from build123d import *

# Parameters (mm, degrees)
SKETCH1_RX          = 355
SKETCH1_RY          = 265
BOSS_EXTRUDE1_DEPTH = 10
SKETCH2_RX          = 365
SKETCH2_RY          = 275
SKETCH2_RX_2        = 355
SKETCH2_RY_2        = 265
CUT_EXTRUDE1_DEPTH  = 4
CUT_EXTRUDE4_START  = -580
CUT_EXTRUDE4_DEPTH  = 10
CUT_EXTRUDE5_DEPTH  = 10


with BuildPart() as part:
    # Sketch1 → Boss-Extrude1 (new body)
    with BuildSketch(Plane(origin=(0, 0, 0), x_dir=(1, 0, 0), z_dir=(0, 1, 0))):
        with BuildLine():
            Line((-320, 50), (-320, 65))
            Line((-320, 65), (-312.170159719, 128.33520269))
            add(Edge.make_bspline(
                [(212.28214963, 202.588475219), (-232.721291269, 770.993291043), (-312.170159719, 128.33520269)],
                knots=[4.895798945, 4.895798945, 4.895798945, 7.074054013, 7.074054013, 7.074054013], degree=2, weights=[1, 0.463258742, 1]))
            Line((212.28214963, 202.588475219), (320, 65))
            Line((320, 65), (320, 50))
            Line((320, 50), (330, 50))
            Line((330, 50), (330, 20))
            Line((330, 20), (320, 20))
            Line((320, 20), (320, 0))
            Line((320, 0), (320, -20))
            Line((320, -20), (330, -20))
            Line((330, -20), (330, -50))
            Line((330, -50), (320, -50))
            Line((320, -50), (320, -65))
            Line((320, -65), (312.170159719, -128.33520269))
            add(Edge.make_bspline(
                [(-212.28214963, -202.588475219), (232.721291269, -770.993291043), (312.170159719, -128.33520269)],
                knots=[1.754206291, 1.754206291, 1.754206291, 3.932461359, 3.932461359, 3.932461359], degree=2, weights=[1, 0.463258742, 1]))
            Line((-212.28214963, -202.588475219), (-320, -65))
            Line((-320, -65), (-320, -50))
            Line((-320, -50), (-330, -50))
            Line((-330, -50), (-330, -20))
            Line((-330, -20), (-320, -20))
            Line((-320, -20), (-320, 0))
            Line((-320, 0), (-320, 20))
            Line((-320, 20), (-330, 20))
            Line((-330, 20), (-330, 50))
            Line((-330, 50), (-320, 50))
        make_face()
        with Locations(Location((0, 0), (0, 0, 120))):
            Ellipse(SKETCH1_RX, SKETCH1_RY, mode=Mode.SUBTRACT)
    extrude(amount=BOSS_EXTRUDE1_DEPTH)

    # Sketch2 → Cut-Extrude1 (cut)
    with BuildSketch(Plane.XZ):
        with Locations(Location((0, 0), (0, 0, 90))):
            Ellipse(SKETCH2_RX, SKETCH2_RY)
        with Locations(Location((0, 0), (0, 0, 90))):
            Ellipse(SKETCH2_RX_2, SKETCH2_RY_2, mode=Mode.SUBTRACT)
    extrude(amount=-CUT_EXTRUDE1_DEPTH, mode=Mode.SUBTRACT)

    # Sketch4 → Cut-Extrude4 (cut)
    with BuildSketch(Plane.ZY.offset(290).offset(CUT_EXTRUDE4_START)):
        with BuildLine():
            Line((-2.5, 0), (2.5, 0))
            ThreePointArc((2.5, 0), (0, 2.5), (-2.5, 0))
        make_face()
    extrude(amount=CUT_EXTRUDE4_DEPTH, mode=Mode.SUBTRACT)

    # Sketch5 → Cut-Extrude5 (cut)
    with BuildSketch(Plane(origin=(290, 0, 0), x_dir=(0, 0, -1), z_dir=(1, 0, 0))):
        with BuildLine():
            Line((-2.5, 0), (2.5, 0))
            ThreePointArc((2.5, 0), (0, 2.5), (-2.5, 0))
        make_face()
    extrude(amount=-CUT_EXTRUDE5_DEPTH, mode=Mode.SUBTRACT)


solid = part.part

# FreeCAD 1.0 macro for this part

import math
import FreeCAD as App
import Part
import Sketcher
from FreeCAD import Vector
Q = App.Units.Quantity

doc = App.newDocument("Part")
body = doc.addObject("PartDesign::Body", "Body")

# Sketch on XZ plane
sketch1 = body.newObject("Sketcher::SketchObject", "Sketch")
sketch1.AttachmentSupport = (doc.getObject("XZ_Plane"), [""])
sketch1.MapMode = "FlatFace"
sketch1.addGeometry(Part.LineSegment(Vector(-320, -65, 0), Vector(-320, -50, 0)), False)
sketch1.addGeometry(Part.LineSegment(Vector(-320, -50, 0), Vector(-330, -50, 0)), False)
sketch1.addGeometry(Part.LineSegment(Vector(-330, -50, 0), Vector(-330, -20, 0)), False)
sketch1.addGeometry(Part.LineSegment(Vector(-330, -20, 0), Vector(-320, -20, 0)), False)
sketch1.addGeometry(Part.LineSegment(Vector(-320, -20, 0), Vector(-320, 20, 0)), False)
sketch1.addGeometry(Part.LineSegment(Vector(-320, 20, 0), Vector(-330, 20, 0)), False)
sketch1.addGeometry(Part.LineSegment(Vector(-330, 20, 0), Vector(-330, 50, 0)), False)
sketch1.addGeometry(Part.LineSegment(Vector(-330, 50, 0), Vector(-320, 50, 0)), False)
sketch1.addGeometry(Part.LineSegment(Vector(-320, 50, 0), Vector(-320, 65, 0)), False)
sketch1.addGeometry(Part.LineSegment(Vector(-320, 65, 0), Vector(-212.28215, 202.588475, 0)), False)
sketch1.addGeometry(Part.BSplineCurve([Vector(-212.28215, 202.588475, 0), Vector(232.721291, 770.993291, 0), Vector(312.17016, 128.335203, 0)], [3, 3], [1.754206291, 3.932461359], False, 2, [1, 0.463258742, 1], False), False)
sketch1.addGeometry(Part.LineSegment(Vector(312.17016, 128.335203, 0), Vector(320, 65, 0)), False)
sketch1.addGeometry(Part.LineSegment(Vector(320, 65, 0), Vector(320, 50, 0)), False)
sketch1.addGeometry(Part.LineSegment(Vector(320, 50, 0), Vector(330, 50, 0)), False)
sketch1.addGeometry(Part.LineSegment(Vector(330, 50, 0), Vector(330, 20, 0)), False)
sketch1.addGeometry(Part.LineSegment(Vector(330, 20, 0), Vector(320, 20, 0)), False)
sketch1.addGeometry(Part.LineSegment(Vector(320, 20, 0), Vector(320, -20, 0)), False)
sketch1.addGeometry(Part.LineSegment(Vector(320, -20, 0), Vector(330, -20, 0)), False)
sketch1.addGeometry(Part.LineSegment(Vector(330, -20, 0), Vector(330, -50, 0)), False)
sketch1.addGeometry(Part.LineSegment(Vector(330, -50, 0), Vector(320, -50, 0)), False)
sketch1.addGeometry(Part.LineSegment(Vector(320, -50, 0), Vector(320, -65, 0)), False)
sketch1.addGeometry(Part.LineSegment(Vector(320, -65, 0), Vector(212.28215, -202.588475, 0)), False)
sketch1.addGeometry(Part.BSplineCurve([Vector(212.28215, -202.588475, 0), Vector(-232.721291, -770.993291, 0), Vector(-312.17016, -128.335203, 0)], [3, 3], [4.895798945, 7.074054013], False, 2, [1, 0.463258742, 1], False), False)
sketch1.addGeometry(Part.LineSegment(Vector(-312.17016, -128.335203, 0), Vector(-320, -65, 0)), False)
sketch1.addGeometry(Part.Ellipse(Vector(-177.5, -307.439018, 0), Vector(229.496732, -132.5, 0), Vector(0, 0, 0)), False)
sketch1.addConstraint(Sketcher.Constraint("Block", 10))
sketch1.addConstraint(Sketcher.Constraint("Block", 22))
sketch1.addConstraint(Sketcher.Constraint("Block", 24))
sketch1.addConstraint(Sketcher.Constraint("Coincident", 0, 2, 1, 1))
sketch1.addConstraint(Sketcher.Constraint("Coincident", 1, 2, 2, 1))
sketch1.addConstraint(Sketcher.Constraint("Coincident", 2, 2, 3, 1))
sketch1.addConstraint(Sketcher.Constraint("Coincident", 3, 2, 4, 1))
sketch1.addConstraint(Sketcher.Constraint("Coincident", 4, 2, 5, 1))
sketch1.addConstraint(Sketcher.Constraint("Coincident", 5, 2, 6, 1))
sketch1.addConstraint(Sketcher.Constraint("Coincident", 6, 2, 7, 1))
sketch1.addConstraint(Sketcher.Constraint("Coincident", 7, 2, 8, 1))
sketch1.addConstraint(Sketcher.Constraint("Coincident", 8, 2, 9, 1))
sketch1.addConstraint(Sketcher.Constraint("Coincident", 9, 2, 10, 1))
sketch1.addConstraint(Sketcher.Constraint("Coincident", 10, 2, 11, 1))
sketch1.addConstraint(Sketcher.Constraint("Coincident", 11, 2, 12, 1))
sketch1.addConstraint(Sketcher.Constraint("Coincident", 12, 2, 13, 1))
sketch1.addConstraint(Sketcher.Constraint("Coincident", 13, 2, 14, 1))
sketch1.addConstraint(Sketcher.Constraint("Coincident", 14, 2, 15, 1))
sketch1.addConstraint(Sketcher.Constraint("Coincident", 15, 2, 16, 1))
sketch1.addConstraint(Sketcher.Constraint("Coincident", 16, 2, 17, 1))
sketch1.addConstraint(Sketcher.Constraint("Coincident", 17, 2, 18, 1))
sketch1.addConstraint(Sketcher.Constraint("Coincident", 18, 2, 19, 1))
sketch1.addConstraint(Sketcher.Constraint("Coincident", 19, 2, 20, 1))
sketch1.addConstraint(Sketcher.Constraint("Coincident", 20, 2, 21, 1))
sketch1.addConstraint(Sketcher.Constraint("Coincident", 21, 2, 22, 1))
sketch1.addConstraint(Sketcher.Constraint("Coincident", 22, 2, 23, 1))
sketch1.addConstraint(Sketcher.Constraint("Coincident", 23, 2, 0, 1))
sketch1.addConstraint(Sketcher.Constraint("Vertical", 0))
sketch1.addConstraint(Sketcher.Constraint("Horizontal", 1))
sketch1.addConstraint(Sketcher.Constraint("Vertical", 2))
sketch1.addConstraint(Sketcher.Constraint("Horizontal", 3))
sketch1.addConstraint(Sketcher.Constraint("Vertical", 4))
sketch1.addConstraint(Sketcher.Constraint("Horizontal", 5))
sketch1.addConstraint(Sketcher.Constraint("Vertical", 6))
sketch1.addConstraint(Sketcher.Constraint("Horizontal", 7))
sketch1.addConstraint(Sketcher.Constraint("Vertical", 8))
sketch1.addConstraint(Sketcher.Constraint("Vertical", 12))
sketch1.addConstraint(Sketcher.Constraint("Horizontal", 13))
sketch1.addConstraint(Sketcher.Constraint("Vertical", 14))
sketch1.addConstraint(Sketcher.Constraint("Horizontal", 15))
sketch1.addConstraint(Sketcher.Constraint("Vertical", 16))
sketch1.addConstraint(Sketcher.Constraint("Horizontal", 17))
sketch1.addConstraint(Sketcher.Constraint("Vertical", 18))
sketch1.addConstraint(Sketcher.Constraint("Horizontal", 19))
sketch1.addConstraint(Sketcher.Constraint("Vertical", 20))
sketch1.addConstraint(Sketcher.Constraint("Symmetric", 0, 2, 12, 2, -1, 1))
sketch1.addConstraint(Sketcher.Constraint("Symmetric", 2, 2, 14, 2, -1, 1))
sketch1.addConstraint(Sketcher.Constraint("Symmetric", 4, 2, 16, 2, -1, 1))
sketch1.addConstraint(Sketcher.Constraint("Symmetric", 6, 2, 18, 2, -1, 1))
sketch1.addConstraint(Sketcher.Constraint("Symmetric", 8, 2, 20, 2, -1, 1))
sketch1.addConstraint(Sketcher.Constraint("Symmetric", 8, 2, 11, 2, -2))
sketch1.addConstraint(Sketcher.Constraint("Symmetric", 6, 2, 13, 2, -2))
sketch1.addConstraint(Sketcher.Constraint("Parallel", 11, 23))
sketch1.addConstraint(Sketcher.Constraint("Horizontal", 5, 2, 14, 2))
sketch1.addConstraint(Sketcher.Constraint("Vertical", 0, 2, 3, 2))
sketch1.addConstraint(Sketcher.Constraint("DistanceX", 1, 2, 1, 1, Q("10 mm")))
sketch1.addConstraint(Sketcher.Constraint("DistanceY", 0, 1, 0, 2, Q("15 mm")))
sketch1.addConstraint(Sketcher.Constraint("DistanceY", 2, 1, 2, 2, Q("30 mm")))
sketch1.addConstraint(Sketcher.Constraint("DistanceY", 4, 1, 4, 2, Q("40 mm")))
sketch1.addConstraint(Sketcher.Constraint("DistanceX", 0, 2, -1, 1, Q("320 mm")))
pad1 = body.newObject("PartDesign::Pad", "Pad")
pad1.Profile = sketch1
pad1.Length = 10
pad1.Reversed = True

# Sketch on XZ plane
sketch2 = body.newObject("Sketcher::SketchObject", "Sketch001")
sketch2.AttachmentSupport = (doc.getObject("XZ_Plane"), [""])
sketch2.MapMode = "FlatFace"
sketch2.addGeometry(Part.Ellipse(Vector(0, 365, 0), Vector(-275, 0, 0), Vector(0, 0, 0)), False)
sketch2.addGeometry(Part.Ellipse(Vector(0, 355, 0), Vector(-265, 0, 0), Vector(0, 0, 0)), False)
sketch2.addConstraint(Sketcher.Constraint("Block", 0))
sketch2.addConstraint(Sketcher.Constraint("Block", 1))
pocket1 = body.newObject("PartDesign::Pocket", "Pocket")
pocket1.Profile = sketch2
pocket1.Length = 4

# Sketch on YZ plane
sketch3 = body.newObject("Sketcher::SketchObject", "Sketch002")
sketch3.AttachmentSupport = (doc.getObject("YZ_Plane"), [""])
sketch3.MapMode = "FlatFace"
sketch3.AttachmentOffset = App.Placement(Vector(0, 0, 290), App.Rotation())
sketch3.addGeometry(Part.LineSegment(Vector(0, -2.5, 0), Vector(0, 2.5, 0)), False)
sketch3.addGeometry(Part.ArcOfCircle(Part.Circle(Vector(0, 0, 0), Vector(0, 0, 1), 2.5), math.radians(-90), math.radians(90)), False)
sketch3.addConstraint(Sketcher.Constraint("Coincident", 0, 1, 1, 1))
sketch3.addConstraint(Sketcher.Constraint("Coincident", 1, 2, 0, 2))
sketch3.addConstraint(Sketcher.Constraint("Vertical", 0))
sketch3.addConstraint(Sketcher.Constraint("Coincident", 1, 3, -1, 1))
sketch3.addConstraint(Sketcher.Constraint("PointOnObject", 0, 1, -2))
sketch3.addConstraint(Sketcher.Constraint("Radius", 1, Q("2.5 mm")))
pocket2 = body.newObject("PartDesign::Pocket", "Pocket001")
pocket2.Profile = sketch3
pocket2.Length = 10

# Sketch on YZ plane
sketch4 = body.newObject("Sketcher::SketchObject", "Sketch003")
sketch4.AttachmentSupport = (doc.getObject("YZ_Plane"), [""])
sketch4.MapMode = "FlatFace"
sketch4.AttachmentOffset = App.Placement(Vector(0, 0, 290), App.Rotation())
sketch4.addGeometry(Part.LineSegment(Vector(0, 2.5, 0), Vector(0, -2.5, 0)), False)
sketch4.addGeometry(Part.ArcOfCircle(Part.Circle(Vector(0, 0, 0), Vector(0, 0, 1), 2.5), math.radians(-90), math.radians(90)), False)
sketch4.addConstraint(Sketcher.Constraint("Coincident", 0, 1, 1, 2))
sketch4.addConstraint(Sketcher.Constraint("Coincident", 1, 1, 0, 2))
sketch4.addConstraint(Sketcher.Constraint("Vertical", 0))
sketch4.addConstraint(Sketcher.Constraint("Coincident", 1, 3, -1, 1))
sketch4.addConstraint(Sketcher.Constraint("PointOnObject", 0, 1, -2))
sketch4.addConstraint(Sketcher.Constraint("Radius", 1, Q("2.5 mm")))
pocket3 = body.newObject("PartDesign::Pocket", "Pocket002")
pocket3.Profile = sketch4
pocket3.Length = 10

doc.recompute()
